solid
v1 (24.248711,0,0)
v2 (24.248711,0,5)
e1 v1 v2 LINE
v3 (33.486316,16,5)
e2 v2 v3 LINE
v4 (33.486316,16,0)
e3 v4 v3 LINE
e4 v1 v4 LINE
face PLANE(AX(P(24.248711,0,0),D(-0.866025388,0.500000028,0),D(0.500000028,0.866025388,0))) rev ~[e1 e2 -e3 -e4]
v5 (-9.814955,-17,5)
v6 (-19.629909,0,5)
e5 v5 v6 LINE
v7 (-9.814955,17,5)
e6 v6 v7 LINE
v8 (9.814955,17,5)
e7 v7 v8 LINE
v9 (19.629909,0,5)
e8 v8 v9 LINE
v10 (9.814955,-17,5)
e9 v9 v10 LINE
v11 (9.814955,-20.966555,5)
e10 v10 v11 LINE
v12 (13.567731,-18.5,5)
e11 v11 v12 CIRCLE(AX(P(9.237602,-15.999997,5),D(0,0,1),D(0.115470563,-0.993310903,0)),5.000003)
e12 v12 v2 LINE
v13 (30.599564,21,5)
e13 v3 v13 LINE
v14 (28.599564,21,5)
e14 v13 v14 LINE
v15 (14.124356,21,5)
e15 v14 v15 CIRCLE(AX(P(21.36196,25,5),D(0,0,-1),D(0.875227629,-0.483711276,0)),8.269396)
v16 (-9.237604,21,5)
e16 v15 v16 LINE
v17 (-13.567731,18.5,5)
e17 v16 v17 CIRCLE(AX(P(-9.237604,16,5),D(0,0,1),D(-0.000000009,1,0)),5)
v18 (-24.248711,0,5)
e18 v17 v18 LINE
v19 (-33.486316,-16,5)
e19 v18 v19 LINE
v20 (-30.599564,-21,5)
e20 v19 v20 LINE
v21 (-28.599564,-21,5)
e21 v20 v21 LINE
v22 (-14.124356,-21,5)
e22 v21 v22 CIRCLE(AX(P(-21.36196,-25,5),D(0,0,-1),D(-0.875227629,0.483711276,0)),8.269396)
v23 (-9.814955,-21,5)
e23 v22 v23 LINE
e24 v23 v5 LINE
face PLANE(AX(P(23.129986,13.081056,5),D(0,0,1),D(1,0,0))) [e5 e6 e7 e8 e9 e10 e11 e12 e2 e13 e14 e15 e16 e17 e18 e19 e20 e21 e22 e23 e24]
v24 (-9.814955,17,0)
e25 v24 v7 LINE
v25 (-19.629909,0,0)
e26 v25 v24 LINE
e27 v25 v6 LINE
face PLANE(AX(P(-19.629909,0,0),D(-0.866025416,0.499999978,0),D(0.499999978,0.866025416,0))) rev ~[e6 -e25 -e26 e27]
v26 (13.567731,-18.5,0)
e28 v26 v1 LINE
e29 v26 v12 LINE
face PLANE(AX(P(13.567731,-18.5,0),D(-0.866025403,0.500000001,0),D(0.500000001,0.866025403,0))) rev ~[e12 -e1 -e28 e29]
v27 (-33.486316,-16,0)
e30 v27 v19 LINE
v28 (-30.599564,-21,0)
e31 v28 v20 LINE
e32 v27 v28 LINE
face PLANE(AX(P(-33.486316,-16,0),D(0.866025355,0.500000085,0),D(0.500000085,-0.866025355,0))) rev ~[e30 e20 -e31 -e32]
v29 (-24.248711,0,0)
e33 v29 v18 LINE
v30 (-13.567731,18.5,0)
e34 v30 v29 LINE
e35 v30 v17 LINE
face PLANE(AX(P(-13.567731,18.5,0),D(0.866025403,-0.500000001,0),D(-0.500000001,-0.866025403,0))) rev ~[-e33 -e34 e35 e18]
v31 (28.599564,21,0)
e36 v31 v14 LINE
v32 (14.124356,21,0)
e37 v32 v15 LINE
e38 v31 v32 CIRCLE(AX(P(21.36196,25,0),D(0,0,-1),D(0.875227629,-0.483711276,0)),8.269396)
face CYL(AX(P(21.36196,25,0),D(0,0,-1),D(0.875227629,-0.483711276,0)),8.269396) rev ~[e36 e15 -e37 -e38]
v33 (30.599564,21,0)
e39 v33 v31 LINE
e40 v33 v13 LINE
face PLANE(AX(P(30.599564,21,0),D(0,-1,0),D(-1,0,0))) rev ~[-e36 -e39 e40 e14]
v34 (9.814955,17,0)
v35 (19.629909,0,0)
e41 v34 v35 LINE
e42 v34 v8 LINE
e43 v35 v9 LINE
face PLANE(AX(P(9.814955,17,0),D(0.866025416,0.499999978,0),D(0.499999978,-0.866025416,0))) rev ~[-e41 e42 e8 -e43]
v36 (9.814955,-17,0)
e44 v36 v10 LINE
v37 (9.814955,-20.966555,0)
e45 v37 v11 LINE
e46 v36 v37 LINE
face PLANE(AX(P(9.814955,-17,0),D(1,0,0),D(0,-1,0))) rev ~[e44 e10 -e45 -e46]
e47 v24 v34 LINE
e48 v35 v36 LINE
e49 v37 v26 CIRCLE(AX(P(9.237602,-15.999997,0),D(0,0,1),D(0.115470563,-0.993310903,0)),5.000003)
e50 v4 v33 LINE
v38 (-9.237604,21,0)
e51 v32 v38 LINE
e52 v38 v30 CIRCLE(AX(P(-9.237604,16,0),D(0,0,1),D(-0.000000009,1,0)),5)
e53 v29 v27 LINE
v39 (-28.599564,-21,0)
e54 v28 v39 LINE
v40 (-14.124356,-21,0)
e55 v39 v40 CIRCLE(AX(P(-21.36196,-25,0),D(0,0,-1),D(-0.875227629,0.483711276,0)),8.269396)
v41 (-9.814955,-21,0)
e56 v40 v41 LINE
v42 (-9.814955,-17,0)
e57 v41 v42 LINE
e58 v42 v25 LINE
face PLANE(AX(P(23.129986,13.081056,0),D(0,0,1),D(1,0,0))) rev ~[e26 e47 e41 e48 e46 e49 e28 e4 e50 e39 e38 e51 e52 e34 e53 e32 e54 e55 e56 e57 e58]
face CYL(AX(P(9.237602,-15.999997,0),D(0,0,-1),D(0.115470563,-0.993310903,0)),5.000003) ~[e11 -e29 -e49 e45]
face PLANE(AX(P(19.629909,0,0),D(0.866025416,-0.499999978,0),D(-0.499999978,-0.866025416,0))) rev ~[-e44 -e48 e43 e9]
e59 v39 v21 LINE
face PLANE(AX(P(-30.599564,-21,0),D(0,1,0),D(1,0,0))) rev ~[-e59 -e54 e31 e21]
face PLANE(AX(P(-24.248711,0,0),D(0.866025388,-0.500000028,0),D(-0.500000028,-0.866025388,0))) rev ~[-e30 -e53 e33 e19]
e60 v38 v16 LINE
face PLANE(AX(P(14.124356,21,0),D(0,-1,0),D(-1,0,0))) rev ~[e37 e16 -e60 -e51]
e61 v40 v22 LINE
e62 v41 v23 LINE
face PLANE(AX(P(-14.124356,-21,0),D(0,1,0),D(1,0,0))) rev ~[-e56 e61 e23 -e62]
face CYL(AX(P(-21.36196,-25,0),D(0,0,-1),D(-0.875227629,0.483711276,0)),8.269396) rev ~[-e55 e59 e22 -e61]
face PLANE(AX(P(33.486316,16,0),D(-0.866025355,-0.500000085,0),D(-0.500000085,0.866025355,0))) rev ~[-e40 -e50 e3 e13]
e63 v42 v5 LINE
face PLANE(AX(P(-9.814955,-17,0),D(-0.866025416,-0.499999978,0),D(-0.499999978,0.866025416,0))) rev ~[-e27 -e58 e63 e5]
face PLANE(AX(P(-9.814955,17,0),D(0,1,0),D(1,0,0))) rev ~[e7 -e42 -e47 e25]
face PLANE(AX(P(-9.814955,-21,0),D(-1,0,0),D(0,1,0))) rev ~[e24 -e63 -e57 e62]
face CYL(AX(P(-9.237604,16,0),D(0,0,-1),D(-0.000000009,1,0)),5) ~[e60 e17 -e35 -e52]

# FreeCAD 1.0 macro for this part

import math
import FreeCAD as App
import Part
import Sketcher
from FreeCAD import Vector
Q = App.Units.Quantity

doc = App.newDocument("Part")
body = doc.addObject("PartDesign::Body", "Body")

# Sketch on XY plane
sketch1 = doc.addObject("Sketcher::SketchObject", "Sketch")
body.addObject(sketch1)
sketch1.AttachmentSupport = (doc.XY_Plane, [""])
sketch1.MapMode = "FlatFace"
sketch1.addGeometry([
    Part.LineSegment(Vector(24.2, 0, 0), Vector(33.5, 16, 0)),  # 0
    Part.LineSegment(Vector(33.5, 16, 0), Vector(30.6, 21, 0)),  # 1
    Part.LineSegment(Vector(30.6, 21, 0), Vector(28.6, 21, 0)),  # 2
    Part.ArcOfCircle(Part.Circle(Vector(21.4, 25, 0), Vector(0, 0, 1), 8.3), math.radians(-151), math.radians(-29)),  # 3
    Part.LineSegment(Vector(14.1, 21, 0), Vector(-9.2, 21, 0)),  # 4
    Part.ArcOfCircle(Part.Circle(Vector(-9.2, 16, 0), Vector(0, 0, 1), 5), math.radians(90), math.radians(150)),  # 5
    Part.LineSegment(Vector(-13.6, 18.5, 0), Vector(-24.2, 0, 0)),  # 6
    Part.LineSegment(Vector(-24.2, 0, 0), Vector(-33.5, -16, 0)),  # 7
    Part.LineSegment(Vector(-33.5, -16, 0), Vector(-30.6, -21, 0)),  # 8
    Part.LineSegment(Vector(-30.6, -21, 0), Vector(-28.6, -21, 0)),  # 9
    Part.ArcOfCircle(Part.Circle(Vector(-21.4, -25, 0), Vector(0, 0, 1), 8.3), math.radians(29), math.radians(151)),  # 10
    Part.LineSegment(Vector(-14.1, -21, 0), Vector(-9.8, -21, 0)),  # 11
    Part.LineSegment(Vector(-9.8, -21, 0), Vector(-9.8, -17, 0)),  # 12
    Part.LineSegment(Vector(-9.8, -17, 0), Vector(-19.6, 0, 0)),  # 13
    Part.LineSegment(Vector(-19.6, 0, 0), Vector(-9.8, 17, 0)),  # 14
    Part.LineSegment(Vector(-9.8, 17, 0), Vector(9.8, 17, 0)),  # 15
    Part.LineSegment(Vector(9.8, 17, 0), Vector(19.6, 0, 0)),  # 16
    Part.LineSegment(Vector(19.6, 0, 0), Vector(9.8, -17, 0)),  # 17
    Part.LineSegment(Vector(9.8, -17, 0), Vector(9.8, -21, 0)),  # 18
    Part.ArcOfCircle(Part.Circle(Vector(9.2, -16, 0), Vector(0, 0, 1), 5), math.radians(-83), math.radians(-30)),  # 19
    Part.LineSegment(Vector(13.6, -18.5, 0), Vector(24.2, 0, 0)),  # 20
], False)
sketch1.addConstraint([
    Sketcher.Constraint("Coincident", 0, 2, 1, 1),
    Sketcher.Constraint("Coincident", 1, 2, 2, 1),
    Sketcher.Constraint("Coincident", 2, 2, 3, 2),
    Sketcher.Constraint("Coincident", 3, 1, 4, 1),
    Sketcher.Constraint("Tangent", 4, 2, 5, 1),
    Sketcher.Constraint("Tangent", 5, 2, 6, 1),
    Sketcher.Constraint("Coincident", 6, 2, 7, 1),
    Sketcher.Constraint("Coincident", 7, 2, 8, 1),
    Sketcher.Constraint("Coincident", 8, 2, 9, 1),
    Sketcher.Constraint("Coincident", 9, 2, 10, 2),
    Sketcher.Constraint("Coincident", 10, 1, 11, 1),
    Sketcher.Constraint("Coincident", 11, 2, 12, 1),
    Sketcher.Constraint("Coincident", 12, 2, 13, 1),
    Sketcher.Constraint("Coincident", 13, 2, 14, 1),
    Sketcher.Constraint("Coincident", 14, 2, 15, 1),
    Sketcher.Constraint("Coincident", 15, 2, 16, 1),
    Sketcher.Constraint("Coincident", 16, 2, 17, 1),
    Sketcher.Constraint("Coincident", 17, 2, 18, 1),
    Sketcher.Constraint("Coincident", 18, 2, 19, 1),
    Sketcher.Constraint("Tangent", 19, 2, 20, 1),
    Sketcher.Constraint("Coincident", 20, 2, 0, 1),
    Sketcher.Constraint("Horizontal", 2),
    Sketcher.Constraint("Horizontal", 4),
    Sketcher.Constraint("Horizontal", 9),
    Sketcher.Constraint("Horizontal", 11),
    Sketcher.Constraint("Vertical", 12),
    Sketcher.Constraint("Horizontal", 15),
    Sketcher.Constraint("Vertical", 18),
    Sketcher.Constraint("Equal", 3, 10),
    Sketcher.Constraint("Symmetric", 3, 3, 10, 3, -1, 1),
    Sketcher.Constraint("Symmetric", 5, 3, 19, 3, -1, 1),
    Sketcher.Constraint("Symmetric", 0, 2, 7, 2, -1, 1),
    Sketcher.Constraint("Symmetric", 1, 2, 8, 2, -1, 1),
    Sketcher.Constraint("Symmetric", 12, 2, 15, 2, -1, 1),
    Sketcher.Constraint("Symmetric", 13, 2, 16, 2, -1, 1),
    Sketcher.Constraint("Symmetric", 14, 2, 17, 2, -1, 1),
    Sketcher.Constraint("Symmetric", 5, 2, 19, 2, -1, 1),
    Sketcher.Constraint("Symmetric", 6, 2, 20, 2, -2),
    Sketcher.Constraint("PointOnObject", 13, 2, -1),
    Sketcher.Constraint("Parallel", 0, 6),
    Sketcher.Constraint("Parallel", 8, 13),
    Sketcher.Constraint("Parallel", 7, 14),
    Sketcher.Constraint("Horizontal", 5, 3, 0, 2),
    Sketcher.Constraint("Horizontal", 2, 2, 3, 1),
    Sketcher.Constraint("Horizontal", 9, 2, 10, 1),
    Sketcher.Constraint("Vertical", 12, 2, 14, 2),
    Sketcher.Constraint("Radius", 5, Q("5 mm")),
    Sketcher.Constraint("DistanceX", 2, 2, 2, 1, Q("2 mm")),
    Sketcher.Constraint("DistanceY", 12, 1, 12, 2, Q("4 mm")),
    Sketcher.Constraint("Angle", 0, Q("59.999998 deg")),
    Sketcher.Constraint("DistanceY", -1, 1, 3, 3, Q("25 mm")),
    Sketcher.Constraint("DistanceY", -1, 1, 5, 3, Q("16 mm")),
    Sketcher.Constraint("DistanceX", 11, 1, 11, 2, Q("4.309401 mm")),
    Sketcher.Constraint("Radius", 3, Q("8.269396 mm")),
    Sketcher.Constraint("DistanceX", 4, 2, 4, 1, Q("23.36196 mm")),
])
pad1 = doc.addObject("PartDesign::Pad", "Pad")
body.addObject(pad1)
pad1.Profile = sketch1
pad1.Length = 5

doc.recompute()
